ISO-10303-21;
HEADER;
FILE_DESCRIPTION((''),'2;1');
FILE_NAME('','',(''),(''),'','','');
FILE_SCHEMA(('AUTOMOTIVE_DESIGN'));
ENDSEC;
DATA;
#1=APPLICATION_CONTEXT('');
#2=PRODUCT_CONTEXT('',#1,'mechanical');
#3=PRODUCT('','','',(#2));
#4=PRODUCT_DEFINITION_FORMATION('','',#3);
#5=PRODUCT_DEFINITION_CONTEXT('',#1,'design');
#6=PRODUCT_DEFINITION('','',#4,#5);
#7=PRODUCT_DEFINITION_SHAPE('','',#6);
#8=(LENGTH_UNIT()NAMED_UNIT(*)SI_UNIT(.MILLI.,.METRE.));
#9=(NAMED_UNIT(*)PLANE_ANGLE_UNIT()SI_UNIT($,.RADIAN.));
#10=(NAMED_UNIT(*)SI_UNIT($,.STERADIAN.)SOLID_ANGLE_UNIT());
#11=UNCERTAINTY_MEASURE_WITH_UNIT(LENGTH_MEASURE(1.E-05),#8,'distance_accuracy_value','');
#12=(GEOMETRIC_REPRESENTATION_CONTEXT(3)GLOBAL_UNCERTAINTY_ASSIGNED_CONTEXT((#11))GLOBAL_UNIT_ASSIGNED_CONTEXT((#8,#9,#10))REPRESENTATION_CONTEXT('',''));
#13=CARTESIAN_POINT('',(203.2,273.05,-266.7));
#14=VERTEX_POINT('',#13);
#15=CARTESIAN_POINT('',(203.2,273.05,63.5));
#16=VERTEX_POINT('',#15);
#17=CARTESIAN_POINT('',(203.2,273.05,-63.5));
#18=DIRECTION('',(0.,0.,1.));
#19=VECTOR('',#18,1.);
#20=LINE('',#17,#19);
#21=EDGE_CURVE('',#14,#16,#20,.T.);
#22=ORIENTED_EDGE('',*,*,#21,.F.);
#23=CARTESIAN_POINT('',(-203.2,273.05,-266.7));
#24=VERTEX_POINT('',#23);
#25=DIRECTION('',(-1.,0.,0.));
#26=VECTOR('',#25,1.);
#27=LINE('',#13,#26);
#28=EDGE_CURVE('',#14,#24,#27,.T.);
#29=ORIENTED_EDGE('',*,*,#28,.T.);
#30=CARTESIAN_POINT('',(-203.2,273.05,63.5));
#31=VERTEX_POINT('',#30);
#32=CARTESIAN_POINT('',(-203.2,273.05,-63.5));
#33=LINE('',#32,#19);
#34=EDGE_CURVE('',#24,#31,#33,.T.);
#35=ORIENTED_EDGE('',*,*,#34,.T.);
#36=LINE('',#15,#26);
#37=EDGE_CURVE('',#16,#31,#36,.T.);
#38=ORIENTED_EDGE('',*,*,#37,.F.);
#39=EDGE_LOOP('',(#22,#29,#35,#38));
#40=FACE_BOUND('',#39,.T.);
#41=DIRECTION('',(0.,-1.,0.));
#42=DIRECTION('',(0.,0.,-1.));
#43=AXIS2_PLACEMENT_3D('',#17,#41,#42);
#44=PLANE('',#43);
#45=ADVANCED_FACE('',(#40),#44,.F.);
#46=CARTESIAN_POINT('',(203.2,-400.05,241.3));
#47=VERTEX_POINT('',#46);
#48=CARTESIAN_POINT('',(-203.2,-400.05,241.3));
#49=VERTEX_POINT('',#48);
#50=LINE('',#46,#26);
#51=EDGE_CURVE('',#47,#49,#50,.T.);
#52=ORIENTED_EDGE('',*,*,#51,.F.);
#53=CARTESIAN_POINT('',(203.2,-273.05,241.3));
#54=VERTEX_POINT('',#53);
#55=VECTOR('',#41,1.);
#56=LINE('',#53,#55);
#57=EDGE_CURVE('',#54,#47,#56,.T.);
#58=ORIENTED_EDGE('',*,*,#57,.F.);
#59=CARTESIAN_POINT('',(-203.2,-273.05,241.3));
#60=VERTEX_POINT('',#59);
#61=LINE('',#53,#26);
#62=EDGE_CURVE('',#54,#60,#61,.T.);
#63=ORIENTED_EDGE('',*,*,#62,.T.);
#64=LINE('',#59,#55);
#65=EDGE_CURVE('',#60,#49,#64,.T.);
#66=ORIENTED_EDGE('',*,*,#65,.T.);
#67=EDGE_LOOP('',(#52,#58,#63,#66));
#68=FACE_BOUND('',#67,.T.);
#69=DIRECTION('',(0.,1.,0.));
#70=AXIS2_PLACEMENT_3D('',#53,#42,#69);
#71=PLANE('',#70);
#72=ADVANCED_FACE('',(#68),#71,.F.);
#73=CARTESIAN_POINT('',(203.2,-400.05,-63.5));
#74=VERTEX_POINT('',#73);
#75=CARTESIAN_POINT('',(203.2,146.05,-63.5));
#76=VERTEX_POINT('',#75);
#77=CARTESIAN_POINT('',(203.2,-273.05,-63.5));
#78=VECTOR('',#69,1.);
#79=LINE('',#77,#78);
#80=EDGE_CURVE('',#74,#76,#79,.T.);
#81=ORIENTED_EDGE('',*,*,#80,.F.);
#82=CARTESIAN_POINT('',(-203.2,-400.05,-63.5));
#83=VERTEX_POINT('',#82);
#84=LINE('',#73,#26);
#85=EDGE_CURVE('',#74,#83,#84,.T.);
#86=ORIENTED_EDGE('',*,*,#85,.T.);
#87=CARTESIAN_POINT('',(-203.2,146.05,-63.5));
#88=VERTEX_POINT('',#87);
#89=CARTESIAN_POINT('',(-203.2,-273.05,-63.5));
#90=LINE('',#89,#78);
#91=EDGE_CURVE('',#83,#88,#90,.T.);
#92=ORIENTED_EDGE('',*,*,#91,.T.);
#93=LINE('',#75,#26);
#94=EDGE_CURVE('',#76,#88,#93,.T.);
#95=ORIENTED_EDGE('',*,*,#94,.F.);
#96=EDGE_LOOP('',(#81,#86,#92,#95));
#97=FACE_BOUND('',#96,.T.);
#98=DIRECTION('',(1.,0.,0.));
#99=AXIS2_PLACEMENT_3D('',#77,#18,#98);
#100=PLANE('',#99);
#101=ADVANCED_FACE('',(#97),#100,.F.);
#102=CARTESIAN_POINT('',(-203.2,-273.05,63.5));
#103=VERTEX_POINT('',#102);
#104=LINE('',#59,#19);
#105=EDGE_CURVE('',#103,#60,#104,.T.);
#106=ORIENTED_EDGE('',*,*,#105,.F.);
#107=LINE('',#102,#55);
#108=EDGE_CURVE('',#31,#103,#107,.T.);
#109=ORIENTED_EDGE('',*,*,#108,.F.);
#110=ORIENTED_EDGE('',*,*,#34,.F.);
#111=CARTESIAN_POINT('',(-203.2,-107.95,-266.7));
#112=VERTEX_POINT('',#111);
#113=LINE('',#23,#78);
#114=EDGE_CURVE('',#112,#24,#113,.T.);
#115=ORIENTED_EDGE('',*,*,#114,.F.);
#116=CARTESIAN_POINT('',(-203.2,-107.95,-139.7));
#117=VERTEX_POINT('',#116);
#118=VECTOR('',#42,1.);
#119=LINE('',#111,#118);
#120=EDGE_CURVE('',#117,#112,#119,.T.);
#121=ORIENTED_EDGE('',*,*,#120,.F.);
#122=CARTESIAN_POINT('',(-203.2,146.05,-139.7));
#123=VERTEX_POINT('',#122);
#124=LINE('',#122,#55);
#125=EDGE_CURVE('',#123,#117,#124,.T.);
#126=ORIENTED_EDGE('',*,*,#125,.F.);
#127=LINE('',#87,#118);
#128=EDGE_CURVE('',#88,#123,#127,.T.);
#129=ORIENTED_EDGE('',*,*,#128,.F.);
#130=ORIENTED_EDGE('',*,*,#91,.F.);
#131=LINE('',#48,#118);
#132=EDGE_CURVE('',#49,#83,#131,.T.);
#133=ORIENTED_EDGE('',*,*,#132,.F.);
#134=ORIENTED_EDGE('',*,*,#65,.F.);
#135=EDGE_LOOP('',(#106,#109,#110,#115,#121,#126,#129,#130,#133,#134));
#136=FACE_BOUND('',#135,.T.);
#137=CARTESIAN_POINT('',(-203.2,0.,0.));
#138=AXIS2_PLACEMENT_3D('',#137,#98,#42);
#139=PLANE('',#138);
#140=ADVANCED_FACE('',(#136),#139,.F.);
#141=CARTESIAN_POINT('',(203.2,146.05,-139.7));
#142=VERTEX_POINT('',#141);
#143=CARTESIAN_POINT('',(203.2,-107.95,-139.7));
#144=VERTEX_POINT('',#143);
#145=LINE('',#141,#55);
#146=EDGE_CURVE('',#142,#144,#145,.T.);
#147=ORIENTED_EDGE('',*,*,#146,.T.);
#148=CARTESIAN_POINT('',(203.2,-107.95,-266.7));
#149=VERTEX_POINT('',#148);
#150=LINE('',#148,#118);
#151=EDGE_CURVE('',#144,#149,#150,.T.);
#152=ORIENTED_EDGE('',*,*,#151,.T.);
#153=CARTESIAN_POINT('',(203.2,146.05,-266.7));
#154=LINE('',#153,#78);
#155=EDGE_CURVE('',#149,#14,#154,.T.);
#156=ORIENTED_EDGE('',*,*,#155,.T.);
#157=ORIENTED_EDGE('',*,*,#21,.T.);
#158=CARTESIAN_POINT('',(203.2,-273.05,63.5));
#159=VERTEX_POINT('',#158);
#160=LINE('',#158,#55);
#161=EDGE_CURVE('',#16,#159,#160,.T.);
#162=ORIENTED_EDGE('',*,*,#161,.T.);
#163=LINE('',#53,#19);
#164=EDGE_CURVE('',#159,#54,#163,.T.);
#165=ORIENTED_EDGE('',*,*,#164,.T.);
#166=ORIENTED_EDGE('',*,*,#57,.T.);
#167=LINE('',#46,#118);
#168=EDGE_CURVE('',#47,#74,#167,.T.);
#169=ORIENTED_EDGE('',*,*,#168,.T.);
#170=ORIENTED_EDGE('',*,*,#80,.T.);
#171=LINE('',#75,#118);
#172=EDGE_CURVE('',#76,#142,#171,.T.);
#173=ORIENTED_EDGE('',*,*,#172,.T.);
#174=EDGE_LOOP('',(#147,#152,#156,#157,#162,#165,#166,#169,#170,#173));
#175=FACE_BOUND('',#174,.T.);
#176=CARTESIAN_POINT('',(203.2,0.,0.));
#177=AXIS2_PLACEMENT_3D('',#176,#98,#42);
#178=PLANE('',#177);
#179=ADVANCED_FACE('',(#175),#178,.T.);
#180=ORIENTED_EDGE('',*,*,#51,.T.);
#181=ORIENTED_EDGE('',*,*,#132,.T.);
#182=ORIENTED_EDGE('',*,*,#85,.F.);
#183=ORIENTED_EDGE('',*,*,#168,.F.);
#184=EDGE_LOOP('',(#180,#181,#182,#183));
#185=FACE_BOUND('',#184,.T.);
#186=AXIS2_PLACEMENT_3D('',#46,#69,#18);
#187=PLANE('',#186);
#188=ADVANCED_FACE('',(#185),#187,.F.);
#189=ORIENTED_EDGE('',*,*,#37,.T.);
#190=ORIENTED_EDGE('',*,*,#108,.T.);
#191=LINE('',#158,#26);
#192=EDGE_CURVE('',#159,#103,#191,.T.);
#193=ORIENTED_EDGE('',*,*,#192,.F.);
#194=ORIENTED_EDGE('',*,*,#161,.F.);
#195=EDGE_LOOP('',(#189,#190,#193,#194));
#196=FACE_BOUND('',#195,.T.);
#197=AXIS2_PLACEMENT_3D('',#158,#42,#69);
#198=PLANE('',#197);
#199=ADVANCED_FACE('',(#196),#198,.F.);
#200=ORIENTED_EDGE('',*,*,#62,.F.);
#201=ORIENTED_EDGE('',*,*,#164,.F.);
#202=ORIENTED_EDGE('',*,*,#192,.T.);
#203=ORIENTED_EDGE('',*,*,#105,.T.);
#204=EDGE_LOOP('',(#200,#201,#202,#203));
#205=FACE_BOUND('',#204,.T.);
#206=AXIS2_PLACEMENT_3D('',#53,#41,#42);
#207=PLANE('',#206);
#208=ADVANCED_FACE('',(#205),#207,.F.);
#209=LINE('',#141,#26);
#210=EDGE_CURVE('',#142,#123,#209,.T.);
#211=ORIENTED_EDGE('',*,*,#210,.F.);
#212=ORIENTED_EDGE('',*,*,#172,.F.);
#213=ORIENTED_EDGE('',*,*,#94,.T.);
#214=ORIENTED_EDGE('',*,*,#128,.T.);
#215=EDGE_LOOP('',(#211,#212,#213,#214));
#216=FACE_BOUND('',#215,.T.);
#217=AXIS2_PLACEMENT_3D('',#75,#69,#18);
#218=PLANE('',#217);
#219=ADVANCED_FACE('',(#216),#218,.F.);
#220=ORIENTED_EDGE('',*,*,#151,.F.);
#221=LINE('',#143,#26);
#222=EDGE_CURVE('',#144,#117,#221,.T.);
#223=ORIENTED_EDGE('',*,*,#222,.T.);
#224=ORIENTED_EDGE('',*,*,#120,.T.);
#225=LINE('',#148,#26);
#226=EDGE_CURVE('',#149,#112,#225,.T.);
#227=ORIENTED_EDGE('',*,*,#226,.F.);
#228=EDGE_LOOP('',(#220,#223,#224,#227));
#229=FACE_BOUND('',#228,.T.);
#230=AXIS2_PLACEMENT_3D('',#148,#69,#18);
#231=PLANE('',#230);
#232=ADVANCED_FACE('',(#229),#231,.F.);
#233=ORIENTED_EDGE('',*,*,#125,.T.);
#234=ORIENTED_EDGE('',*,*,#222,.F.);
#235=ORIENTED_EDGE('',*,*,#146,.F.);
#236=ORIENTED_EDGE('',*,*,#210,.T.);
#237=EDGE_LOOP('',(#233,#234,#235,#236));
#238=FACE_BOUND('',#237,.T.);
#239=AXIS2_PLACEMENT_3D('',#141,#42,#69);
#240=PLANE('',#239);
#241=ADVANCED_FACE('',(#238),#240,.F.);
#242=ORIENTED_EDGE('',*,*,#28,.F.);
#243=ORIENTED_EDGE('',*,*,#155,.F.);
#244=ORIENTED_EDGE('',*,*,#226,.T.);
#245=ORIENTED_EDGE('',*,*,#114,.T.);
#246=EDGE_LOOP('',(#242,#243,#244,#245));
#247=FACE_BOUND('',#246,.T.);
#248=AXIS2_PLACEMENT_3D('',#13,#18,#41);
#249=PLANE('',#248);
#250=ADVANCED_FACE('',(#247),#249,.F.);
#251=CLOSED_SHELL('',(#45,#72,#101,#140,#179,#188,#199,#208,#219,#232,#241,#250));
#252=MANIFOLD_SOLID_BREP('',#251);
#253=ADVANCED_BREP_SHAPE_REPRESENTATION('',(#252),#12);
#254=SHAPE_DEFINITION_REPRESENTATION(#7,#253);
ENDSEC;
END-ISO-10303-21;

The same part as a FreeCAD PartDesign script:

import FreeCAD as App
import Part
import Sketcher
from FreeCAD import Vector
Q = App.Units.Quantity

doc = App.newDocument("Part")
body = doc.addObject("PartDesign::Body", "Body")

# Sketch on YZ plane
sketch1 = body.newObject("Sketcher::SketchObject", "Sketch")
sketch1.AttachmentSupport = (doc.getObject("YZ_Plane"), [""])
sketch1.MapMode = "FlatFace"
sketch1.addGeometry([
    Part.LineSegment(Vector(-273, 64, 0), Vector(-273, 241, 0)),  # 0
    Part.LineSegment(Vector(-273, 241, 0), Vector(-400, 241, 0)),  # 1
    Part.LineSegment(Vector(-400, 241, 0), Vector(-400, -64, 0)),  # 2
    Part.LineSegment(Vector(-400, -64, 0), Vector(146, -64, 0)),  # 3
    Part.LineSegment(Vector(146, -64, 0), Vector(146, -140, 0)),  # 4
    Part.LineSegment(Vector(146, -140, 0), Vector(-108, -140, 0)),  # 5
    Part.LineSegment(Vector(-108, -140, 0), Vector(-108, -267, 0)),  # 6
    Part.LineSegment(Vector(-108, -267, 0), Vector(273, -267, 0)),  # 7
    Part.LineSegment(Vector(273, -267, 0), Vector(273, 64, 0)),  # 8
    Part.LineSegment(Vector(273, 64, 0), Vector(-273, 64, 0)),  # 9
], False)
sketch1.addConstraint([
    Sketcher.Constraint("Coincident", 0, 2, 1, 1),
    Sketcher.Constraint("Coincident", 1, 2, 2, 1),
    Sketcher.Constraint("Coincident", 2, 2, 3, 1),
    Sketcher.Constraint("Coincident", 3, 2, 4, 1),
    Sketcher.Constraint("Coincident", 4, 2, 5, 1),
    Sketcher.Constraint("Coincident", 5, 2, 6, 1),
    Sketcher.Constraint("Coincident", 6, 2, 7, 1),
    Sketcher.Constraint("Coincident", 7, 2, 8, 1),
    Sketcher.Constraint("Coincident", 8, 2, 9, 1),
    Sketcher.Constraint("Coincident", 9, 2, 0, 1),
    Sketcher.Constraint("Vertical", 0),
    Sketcher.Constraint("Horizontal", 1),
    Sketcher.Constraint("Vertical", 2),
    Sketcher.Constraint("Horizontal", 3),
    Sketcher.Constraint("Vertical", 4),
    Sketcher.Constraint("Horizontal", 5),
    Sketcher.Constraint("Vertical", 6),
    Sketcher.Constraint("Horizontal", 7),
    Sketcher.Constraint("Vertical", 8),
    Sketcher.Constraint("Horizontal", 9),
    Sketcher.Constraint("Equal", 3, 9),
    Sketcher.Constraint("Equal", 1, 6),
    Sketcher.Constraint("DistanceX", 1, 2, 1, 1, Q("5 in")),
    Sketcher.Constraint("DistanceX", 5, 2, 5, 1, Q("10 in")),
    Sketcher.Constraint("DistanceY", 0, 1, 0, 2, Q("7 in")),
    Sketcher.Constraint("DistanceY", 2, 2, 2, 1, Q("12 in")),
    Sketcher.Constraint("DistanceY", 4, 2, 4, 1, Q("3 in")),
    Sketcher.Constraint("DistanceX", 3, 1, 3, 2, Q("21.5 in")),
    Sketcher.Constraint("DistanceY", -1, 1, 0, 2, Q("9.5 in")),
    Sketcher.Constraint("DistanceX", 0, 2, -1, 1, Q("10.75 in")),
])
pad1 = body.newObject("PartDesign::Pad", "Pad")
pad1.Profile = sketch1
pad1.Length = Q("16 in")
pad1.Midplane = True

doc.recompute()
